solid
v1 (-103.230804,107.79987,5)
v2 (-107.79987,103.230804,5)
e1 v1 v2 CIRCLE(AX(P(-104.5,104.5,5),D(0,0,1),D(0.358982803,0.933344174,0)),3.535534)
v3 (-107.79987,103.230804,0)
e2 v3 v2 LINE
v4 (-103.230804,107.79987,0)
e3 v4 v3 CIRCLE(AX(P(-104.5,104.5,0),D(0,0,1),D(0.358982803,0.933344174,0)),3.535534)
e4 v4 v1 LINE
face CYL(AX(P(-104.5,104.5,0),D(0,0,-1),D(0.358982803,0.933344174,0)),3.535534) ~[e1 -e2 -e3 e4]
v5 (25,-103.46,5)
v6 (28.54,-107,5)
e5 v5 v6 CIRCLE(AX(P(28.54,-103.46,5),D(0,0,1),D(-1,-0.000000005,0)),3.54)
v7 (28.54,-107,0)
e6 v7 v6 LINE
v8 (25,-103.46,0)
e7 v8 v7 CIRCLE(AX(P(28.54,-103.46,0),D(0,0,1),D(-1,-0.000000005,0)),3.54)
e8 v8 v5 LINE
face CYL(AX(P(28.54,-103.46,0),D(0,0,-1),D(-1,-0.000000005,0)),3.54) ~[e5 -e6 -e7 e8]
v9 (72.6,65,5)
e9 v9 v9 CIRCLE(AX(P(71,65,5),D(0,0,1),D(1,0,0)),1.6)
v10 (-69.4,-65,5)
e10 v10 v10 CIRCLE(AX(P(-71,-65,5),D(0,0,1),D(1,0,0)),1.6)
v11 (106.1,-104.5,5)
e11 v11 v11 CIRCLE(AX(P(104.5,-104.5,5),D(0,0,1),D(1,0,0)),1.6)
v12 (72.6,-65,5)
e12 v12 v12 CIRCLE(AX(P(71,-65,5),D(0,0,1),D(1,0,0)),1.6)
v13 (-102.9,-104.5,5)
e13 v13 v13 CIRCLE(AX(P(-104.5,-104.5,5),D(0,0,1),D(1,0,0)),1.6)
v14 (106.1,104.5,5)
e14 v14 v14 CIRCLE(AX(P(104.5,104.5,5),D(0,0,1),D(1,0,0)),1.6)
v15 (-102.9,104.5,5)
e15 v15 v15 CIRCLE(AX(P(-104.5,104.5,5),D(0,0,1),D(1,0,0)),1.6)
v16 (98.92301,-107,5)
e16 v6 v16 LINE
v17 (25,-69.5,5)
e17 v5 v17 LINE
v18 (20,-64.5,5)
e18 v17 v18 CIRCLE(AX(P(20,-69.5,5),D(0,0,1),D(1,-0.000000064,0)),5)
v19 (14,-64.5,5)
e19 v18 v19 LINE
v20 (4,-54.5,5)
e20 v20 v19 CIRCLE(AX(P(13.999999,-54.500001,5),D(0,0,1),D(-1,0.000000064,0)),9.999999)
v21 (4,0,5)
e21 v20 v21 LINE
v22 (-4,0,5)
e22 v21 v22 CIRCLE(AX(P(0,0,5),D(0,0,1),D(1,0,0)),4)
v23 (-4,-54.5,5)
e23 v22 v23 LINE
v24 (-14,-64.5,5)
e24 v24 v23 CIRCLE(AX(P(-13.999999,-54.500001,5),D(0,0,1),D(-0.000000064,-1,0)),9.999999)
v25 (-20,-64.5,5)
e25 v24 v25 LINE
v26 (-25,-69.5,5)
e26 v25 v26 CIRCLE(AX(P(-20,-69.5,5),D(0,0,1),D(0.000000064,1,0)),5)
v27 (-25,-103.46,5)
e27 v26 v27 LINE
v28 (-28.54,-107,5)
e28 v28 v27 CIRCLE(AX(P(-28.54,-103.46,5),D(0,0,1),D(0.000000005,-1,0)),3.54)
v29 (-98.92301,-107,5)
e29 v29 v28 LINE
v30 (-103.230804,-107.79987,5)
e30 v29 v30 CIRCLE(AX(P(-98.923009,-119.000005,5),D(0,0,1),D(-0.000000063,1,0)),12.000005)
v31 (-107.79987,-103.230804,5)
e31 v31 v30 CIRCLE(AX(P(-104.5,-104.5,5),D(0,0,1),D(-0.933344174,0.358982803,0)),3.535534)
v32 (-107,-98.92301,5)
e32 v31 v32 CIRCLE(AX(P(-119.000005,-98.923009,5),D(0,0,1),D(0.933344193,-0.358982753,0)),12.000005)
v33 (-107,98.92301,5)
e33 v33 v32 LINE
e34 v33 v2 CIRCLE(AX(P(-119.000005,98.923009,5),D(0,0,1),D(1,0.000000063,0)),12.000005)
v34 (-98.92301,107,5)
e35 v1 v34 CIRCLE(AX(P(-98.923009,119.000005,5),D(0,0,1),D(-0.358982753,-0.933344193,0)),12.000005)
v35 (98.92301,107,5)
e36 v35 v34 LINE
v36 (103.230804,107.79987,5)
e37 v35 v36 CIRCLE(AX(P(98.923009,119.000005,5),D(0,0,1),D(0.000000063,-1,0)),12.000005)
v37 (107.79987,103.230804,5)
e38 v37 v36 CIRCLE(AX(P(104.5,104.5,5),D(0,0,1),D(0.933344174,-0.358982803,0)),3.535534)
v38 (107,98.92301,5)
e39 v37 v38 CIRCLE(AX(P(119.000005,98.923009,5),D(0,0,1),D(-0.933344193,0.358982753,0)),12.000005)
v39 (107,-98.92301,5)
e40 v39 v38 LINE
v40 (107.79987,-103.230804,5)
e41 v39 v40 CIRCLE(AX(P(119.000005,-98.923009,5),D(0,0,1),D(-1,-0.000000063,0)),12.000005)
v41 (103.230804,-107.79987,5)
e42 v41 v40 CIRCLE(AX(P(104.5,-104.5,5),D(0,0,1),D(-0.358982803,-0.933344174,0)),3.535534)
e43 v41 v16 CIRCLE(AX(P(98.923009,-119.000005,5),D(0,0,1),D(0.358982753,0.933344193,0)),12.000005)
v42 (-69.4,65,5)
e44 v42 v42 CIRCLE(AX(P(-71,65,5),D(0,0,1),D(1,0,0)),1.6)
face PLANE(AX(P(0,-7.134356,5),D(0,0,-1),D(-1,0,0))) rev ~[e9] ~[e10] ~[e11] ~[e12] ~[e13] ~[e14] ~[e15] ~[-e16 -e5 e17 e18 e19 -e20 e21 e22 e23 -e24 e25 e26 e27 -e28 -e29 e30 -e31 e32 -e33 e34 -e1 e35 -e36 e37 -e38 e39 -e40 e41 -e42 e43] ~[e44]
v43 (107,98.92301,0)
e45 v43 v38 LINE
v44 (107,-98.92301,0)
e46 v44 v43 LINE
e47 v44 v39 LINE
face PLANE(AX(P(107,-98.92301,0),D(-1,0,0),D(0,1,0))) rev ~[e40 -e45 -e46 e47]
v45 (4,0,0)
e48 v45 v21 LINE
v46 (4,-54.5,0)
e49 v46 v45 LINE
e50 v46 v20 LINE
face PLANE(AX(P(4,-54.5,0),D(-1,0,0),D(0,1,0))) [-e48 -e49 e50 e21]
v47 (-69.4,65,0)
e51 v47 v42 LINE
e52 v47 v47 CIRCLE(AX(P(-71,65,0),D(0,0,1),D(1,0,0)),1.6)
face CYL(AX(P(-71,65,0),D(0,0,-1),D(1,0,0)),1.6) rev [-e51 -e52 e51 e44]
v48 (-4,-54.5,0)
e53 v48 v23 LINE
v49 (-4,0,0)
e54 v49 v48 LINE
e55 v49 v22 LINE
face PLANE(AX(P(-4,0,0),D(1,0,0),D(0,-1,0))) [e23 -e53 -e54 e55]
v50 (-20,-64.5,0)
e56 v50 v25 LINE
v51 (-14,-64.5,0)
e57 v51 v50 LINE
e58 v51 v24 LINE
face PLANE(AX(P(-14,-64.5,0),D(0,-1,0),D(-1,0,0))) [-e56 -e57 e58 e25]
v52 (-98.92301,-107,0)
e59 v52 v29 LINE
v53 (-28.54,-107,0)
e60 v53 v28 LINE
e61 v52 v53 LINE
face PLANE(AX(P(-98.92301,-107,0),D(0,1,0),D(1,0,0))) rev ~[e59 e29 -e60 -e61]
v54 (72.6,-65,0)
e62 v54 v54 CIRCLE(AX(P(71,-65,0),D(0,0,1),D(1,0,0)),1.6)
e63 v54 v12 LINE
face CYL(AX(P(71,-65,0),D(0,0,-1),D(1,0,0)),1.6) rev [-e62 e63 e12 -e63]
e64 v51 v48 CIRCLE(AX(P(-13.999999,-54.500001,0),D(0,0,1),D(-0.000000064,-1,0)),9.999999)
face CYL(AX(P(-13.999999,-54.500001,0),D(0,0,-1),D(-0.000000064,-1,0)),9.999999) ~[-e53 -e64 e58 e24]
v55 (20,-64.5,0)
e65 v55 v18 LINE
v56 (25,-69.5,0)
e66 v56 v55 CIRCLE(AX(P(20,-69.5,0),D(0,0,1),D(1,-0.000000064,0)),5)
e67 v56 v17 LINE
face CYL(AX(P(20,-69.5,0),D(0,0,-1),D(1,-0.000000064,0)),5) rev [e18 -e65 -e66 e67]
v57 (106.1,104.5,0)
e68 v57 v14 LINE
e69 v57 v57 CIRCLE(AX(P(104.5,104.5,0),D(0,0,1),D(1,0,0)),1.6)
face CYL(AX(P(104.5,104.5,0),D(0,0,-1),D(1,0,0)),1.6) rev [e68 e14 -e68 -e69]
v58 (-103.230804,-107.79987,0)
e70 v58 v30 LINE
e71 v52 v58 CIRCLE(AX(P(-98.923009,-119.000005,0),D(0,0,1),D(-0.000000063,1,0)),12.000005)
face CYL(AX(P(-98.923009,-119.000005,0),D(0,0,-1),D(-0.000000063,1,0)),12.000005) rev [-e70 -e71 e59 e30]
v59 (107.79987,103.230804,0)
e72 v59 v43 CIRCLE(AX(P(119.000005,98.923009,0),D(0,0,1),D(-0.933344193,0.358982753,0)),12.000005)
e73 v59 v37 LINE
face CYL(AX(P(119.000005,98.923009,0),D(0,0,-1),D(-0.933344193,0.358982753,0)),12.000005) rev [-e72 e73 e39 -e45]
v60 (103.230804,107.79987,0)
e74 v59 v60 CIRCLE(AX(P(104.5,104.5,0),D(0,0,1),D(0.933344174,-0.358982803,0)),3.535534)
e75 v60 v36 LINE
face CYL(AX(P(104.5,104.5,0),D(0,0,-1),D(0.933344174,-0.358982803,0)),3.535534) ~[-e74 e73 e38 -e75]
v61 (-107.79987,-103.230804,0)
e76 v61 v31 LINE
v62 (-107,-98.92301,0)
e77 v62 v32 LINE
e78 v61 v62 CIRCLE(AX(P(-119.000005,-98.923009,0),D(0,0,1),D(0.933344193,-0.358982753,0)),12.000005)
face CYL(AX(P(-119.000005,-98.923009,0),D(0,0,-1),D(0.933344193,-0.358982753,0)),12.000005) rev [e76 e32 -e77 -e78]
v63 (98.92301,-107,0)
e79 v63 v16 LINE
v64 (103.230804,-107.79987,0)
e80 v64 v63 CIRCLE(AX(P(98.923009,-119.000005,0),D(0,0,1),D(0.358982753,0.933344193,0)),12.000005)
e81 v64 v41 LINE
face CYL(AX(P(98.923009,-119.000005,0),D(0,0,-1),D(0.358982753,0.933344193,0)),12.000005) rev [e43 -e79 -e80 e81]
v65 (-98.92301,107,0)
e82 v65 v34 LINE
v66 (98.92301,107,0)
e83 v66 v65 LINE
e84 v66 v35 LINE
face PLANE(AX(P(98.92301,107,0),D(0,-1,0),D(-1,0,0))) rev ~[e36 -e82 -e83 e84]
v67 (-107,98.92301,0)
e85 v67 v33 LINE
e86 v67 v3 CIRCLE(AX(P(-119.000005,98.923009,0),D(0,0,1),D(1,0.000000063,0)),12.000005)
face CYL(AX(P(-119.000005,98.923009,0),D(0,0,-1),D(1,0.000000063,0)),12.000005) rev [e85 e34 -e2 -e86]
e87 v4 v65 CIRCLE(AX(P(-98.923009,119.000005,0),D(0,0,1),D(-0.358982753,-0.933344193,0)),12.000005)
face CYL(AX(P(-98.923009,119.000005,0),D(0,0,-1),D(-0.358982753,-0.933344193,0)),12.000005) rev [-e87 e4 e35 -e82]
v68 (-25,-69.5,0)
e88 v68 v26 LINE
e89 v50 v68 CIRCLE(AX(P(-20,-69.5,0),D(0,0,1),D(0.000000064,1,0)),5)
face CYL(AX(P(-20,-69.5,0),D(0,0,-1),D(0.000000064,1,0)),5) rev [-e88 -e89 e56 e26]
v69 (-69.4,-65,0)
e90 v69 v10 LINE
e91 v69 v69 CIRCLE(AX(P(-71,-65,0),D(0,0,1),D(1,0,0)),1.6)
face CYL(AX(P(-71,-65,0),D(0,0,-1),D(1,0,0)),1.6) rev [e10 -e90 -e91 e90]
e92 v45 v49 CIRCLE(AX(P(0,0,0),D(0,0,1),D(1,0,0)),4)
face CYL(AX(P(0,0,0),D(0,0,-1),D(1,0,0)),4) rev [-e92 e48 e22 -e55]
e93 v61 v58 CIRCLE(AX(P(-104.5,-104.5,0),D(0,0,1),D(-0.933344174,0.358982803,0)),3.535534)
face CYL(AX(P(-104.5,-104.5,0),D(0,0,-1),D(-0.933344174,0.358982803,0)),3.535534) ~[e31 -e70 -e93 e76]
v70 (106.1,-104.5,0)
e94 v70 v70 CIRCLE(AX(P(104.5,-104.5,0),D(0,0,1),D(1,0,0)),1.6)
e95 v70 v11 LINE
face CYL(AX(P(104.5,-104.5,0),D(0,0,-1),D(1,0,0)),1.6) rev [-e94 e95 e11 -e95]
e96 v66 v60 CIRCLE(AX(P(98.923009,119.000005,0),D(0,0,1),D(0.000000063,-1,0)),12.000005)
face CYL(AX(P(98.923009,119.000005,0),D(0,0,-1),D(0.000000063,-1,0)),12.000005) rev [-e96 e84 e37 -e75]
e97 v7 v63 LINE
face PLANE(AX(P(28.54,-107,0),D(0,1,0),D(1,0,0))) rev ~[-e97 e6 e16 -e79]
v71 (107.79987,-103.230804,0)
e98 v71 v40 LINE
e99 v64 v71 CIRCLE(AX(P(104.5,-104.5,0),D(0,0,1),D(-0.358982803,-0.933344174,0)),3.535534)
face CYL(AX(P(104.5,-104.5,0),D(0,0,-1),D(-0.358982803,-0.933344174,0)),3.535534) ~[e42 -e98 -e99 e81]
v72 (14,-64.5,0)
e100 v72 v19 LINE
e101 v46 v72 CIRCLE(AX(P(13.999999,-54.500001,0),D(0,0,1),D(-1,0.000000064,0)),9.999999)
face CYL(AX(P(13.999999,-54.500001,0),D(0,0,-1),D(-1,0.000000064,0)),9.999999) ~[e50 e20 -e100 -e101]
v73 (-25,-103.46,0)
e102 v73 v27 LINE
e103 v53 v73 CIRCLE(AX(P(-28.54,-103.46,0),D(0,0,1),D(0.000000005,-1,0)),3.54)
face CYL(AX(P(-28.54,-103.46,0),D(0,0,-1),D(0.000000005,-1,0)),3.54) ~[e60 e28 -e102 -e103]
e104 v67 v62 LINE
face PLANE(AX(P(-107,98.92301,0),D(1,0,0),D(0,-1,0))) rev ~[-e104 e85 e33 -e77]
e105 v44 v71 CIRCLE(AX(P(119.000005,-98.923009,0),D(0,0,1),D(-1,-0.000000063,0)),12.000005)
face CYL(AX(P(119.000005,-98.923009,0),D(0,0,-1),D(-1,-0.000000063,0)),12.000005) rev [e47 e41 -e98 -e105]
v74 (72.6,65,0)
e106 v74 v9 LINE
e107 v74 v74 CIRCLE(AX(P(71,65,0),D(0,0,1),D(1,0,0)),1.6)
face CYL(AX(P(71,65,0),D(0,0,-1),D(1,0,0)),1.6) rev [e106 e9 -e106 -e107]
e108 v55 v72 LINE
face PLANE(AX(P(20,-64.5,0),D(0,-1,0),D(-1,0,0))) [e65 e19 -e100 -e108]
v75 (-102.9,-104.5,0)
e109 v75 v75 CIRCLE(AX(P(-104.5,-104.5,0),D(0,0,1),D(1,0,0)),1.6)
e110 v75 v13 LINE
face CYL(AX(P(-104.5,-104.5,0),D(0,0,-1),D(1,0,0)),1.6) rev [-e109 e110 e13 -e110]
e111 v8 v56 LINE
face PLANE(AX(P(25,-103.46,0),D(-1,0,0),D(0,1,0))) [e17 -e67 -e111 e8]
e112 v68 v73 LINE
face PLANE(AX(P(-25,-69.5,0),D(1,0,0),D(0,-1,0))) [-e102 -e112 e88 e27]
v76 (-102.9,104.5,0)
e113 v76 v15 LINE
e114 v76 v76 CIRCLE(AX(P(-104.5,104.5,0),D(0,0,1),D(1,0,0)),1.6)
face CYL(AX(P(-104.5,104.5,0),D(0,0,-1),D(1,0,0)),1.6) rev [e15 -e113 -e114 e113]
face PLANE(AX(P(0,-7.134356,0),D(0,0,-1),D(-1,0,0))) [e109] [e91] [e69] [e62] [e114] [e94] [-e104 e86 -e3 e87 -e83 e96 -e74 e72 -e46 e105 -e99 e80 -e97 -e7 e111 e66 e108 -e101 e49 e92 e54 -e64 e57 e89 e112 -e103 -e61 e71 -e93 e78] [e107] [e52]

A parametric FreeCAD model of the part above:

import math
import FreeCAD as App
import Part
import Sketcher

V = App.Vector

doc = App.newDocument("Part")
params = doc.addObject("Spreadsheet::Sheet", "Params")
for row, (alias, value) in enumerate([
    ("sketch1_radius", "4 mm"),
    ("sketch1_radius2", "9.999999 mm"),
    ("sketch1_radius3", "5 mm"),
    ("sketch1_diameter", "3.2 mm"),
    ("sketch1_width", "6 mm"),
    ("pad1_length", "5 mm"),
], start=1):
    params.set(f"A{row}", alias)
    params.set(f"B{row}", "=" + value)
    params.setAlias(f"B{row}", alias)

body = doc.addObject("PartDesign::Body", "Body")

sketch1 = body.newObject("Sketcher::SketchObject", "Sketch")
sketch1.AttachmentSupport = (doc.getObject("XY_Plane"), [""])
sketch1.MapMode = "FlatFace"
sketch1.addGeometry([
    Part.ArcOfCircle(Part.Circle(V(0, 0, 0), V(0, 0, 1), 4), math.radians(0), math.radians(180)),
    Part.LineSegment(V(4, 0, 0), V(4, -54.5, 0)),
    Part.ArcOfCircle(Part.Circle(V(14, -54.5, 0), V(0, 0, 1), 10), math.radians(180), math.radians(270)),
    Part.LineSegment(V(14, -64.5, 0), V(20, -64.5, 0)),
    Part.ArcOfCircle(Part.Circle(V(20, -69.5, 0), V(0, 0, 1), 5), math.radians(0), math.radians(90)),
    Part.LineSegment(V(25, -69.5, 0), V(25, -103.5, 0)),
    Part.ArcOfCircle(Part.Circle(V(28.5, -103.5, 0), V(0, 0, 1), 3.5), math.radians(-180), math.radians(-90)),
    Part.LineSegment(V(28.5, -107, 0), V(98.9, -107, 0)),
    Part.ArcOfCircle(Part.Circle(V(98.9, -119, 0), V(0, 0, 1), 12), math.radians(69), math.radians(90)),
    Part.ArcOfCircle(Part.Circle(V(104.5, -104.5, 0), V(0, 0, 1), 3.5), math.radians(-111), math.radians(21)),
    Part.ArcOfCircle(Part.Circle(V(119, -98.9, 0), V(0, 0, 1), 12), math.radians(-180), math.radians(-159)),
    Part.LineSegment(V(107, -98.9, 0), V(107, 98.9, 0)),
    Part.ArcOfCircle(Part.Circle(V(119, 98.9, 0), V(0, 0, 1), 12), math.radians(159), math.radians(180)),
    Part.ArcOfCircle(Part.Circle(V(104.5, 104.5, 0), V(0, 0, 1), 3.5), math.radians(-21), math.radians(111)),
    Part.ArcOfCircle(Part.Circle(V(98.9, 119, 0), V(0, 0, 1), 12), math.radians(-90), math.radians(-69)),
    Part.LineSegment(V(98.9, 107, 0), V(-98.9, 107, 0)),
    Part.ArcOfCircle(Part.Circle(V(-98.9, 119, 0), V(0, 0, 1), 12), math.radians(-111), math.radians(-90)),
    Part.ArcOfCircle(Part.Circle(V(-104.5, 104.5, 0), V(0, 0, 1), 3.5), math.radians(69), math.radians(201)),
    Part.ArcOfCircle(Part.Circle(V(-119, 98.9, 0), V(0, 0, 1), 12), math.radians(0), math.radians(21)),
    Part.LineSegment(V(-107, 98.9, 0), V(-107, -98.9, 0)),
    Part.ArcOfCircle(Part.Circle(V(-119, -98.9, 0), V(0, 0, 1), 12), math.radians(-21), math.radians(0)),
    Part.ArcOfCircle(Part.Circle(V(-104.5, -104.5, 0), V(0, 0, 1), 3.5), math.radians(159), math.radians(291)),
    Part.ArcOfCircle(Part.Circle(V(-98.9, -119, 0), V(0, 0, 1), 12), math.radians(90), math.radians(111)),
    Part.LineSegment(V(-98.9, -107, 0), V(-28.5, -107, 0)),
    Part.ArcOfCircle(Part.Circle(V(-28.5, -103.5, 0), V(0, 0, 1), 3.5), math.radians(-90), math.radians(0)),
    Part.LineSegment(V(-25, -103.5, 0), V(-25, -69.5, 0)),
    Part.ArcOfCircle(Part.Circle(V(-20, -69.5, 0), V(0, 0, 1), 5), math.radians(90), math.radians(180)),
    Part.LineSegment(V(-20, -64.5, 0), V(-14, -64.5, 0)),
    Part.ArcOfCircle(Part.Circle(V(-14, -54.5, 0), V(0, 0, 1), 10), math.radians(-90), math.radians(0)),
    Part.LineSegment(V(-4, -54.5, 0), V(-4, 0, 0)),
    Part.Circle(V(104.5, -104.5, 0), V(0, 0, 1), 1.6),
    Part.Circle(V(71, -65, 0), V(0, 0, 1), 1.6),
    Part.Circle(V(-104.5, -104.5, 0), V(0, 0, 1), 1.6),
    Part.Circle(V(-71, -65, 0), V(0, 0, 1), 1.6),
    Part.Circle(V(71, 65, 0), V(0, 0, 1), 1.6),
    Part.Circle(V(104.5, 104.5, 0), V(0, 0, 1), 1.6),
    Part.Circle(V(-71, 65, 0), V(0, 0, 1), 1.6),
    Part.Circle(V(-104.5, 104.5, 0), V(0, 0, 1), 1.6),
], False)
sketch1.addConstraint([
    Sketcher.Constraint("Tangent", 0, 1, 1, 1),
    Sketcher.Constraint("Tangent", 1, 2, 2, 1),
    Sketcher.Constraint("Tangent", 2, 2, 3, 1),
    Sketcher.Constraint("Tangent", 3, 2, 4, 2),
    Sketcher.Constraint("Tangent", 4, 1, 5, 1),
    Sketcher.Constraint("Tangent", 5, 2, 6, 1),
    Sketcher.Constraint("Tangent", 6, 2, 7, 1),
    Sketcher.Constraint("Tangent", 7, 2, 8, 2),
    Sketcher.Constraint("Tangent", 8, 1, 9, 1),
    Sketcher.Constraint("Tangent", 9, 2, 10, 2),
    Sketcher.Constraint("Tangent", 10, 1, 11, 1),
    Sketcher.Constraint("Tangent", 11, 2, 12, 2),
    Sketcher.Constraint("Tangent", 12, 1, 13, 1),
    Sketcher.Constraint("Tangent", 13, 2, 14, 2),
    Sketcher.Constraint("Tangent", 14, 1, 15, 1),
    Sketcher.Constraint("Tangent", 15, 2, 16, 2),
    Sketcher.Constraint("Tangent", 16, 1, 17, 1),
    Sketcher.Constraint("Tangent", 17, 2, 18, 2),
    Sketcher.Constraint("Tangent", 18, 1, 19, 1),
    Sketcher.Constraint("Tangent", 19, 2, 20, 2),
    Sketcher.Constraint("Tangent", 20, 1, 21, 1),
    Sketcher.Constraint("Tangent", 21, 2, 22, 2),
    Sketcher.Constraint("Tangent", 22, 1, 23, 1),
    Sketcher.Constraint("Tangent", 23, 2, 24, 1),
    Sketcher.Constraint("Tangent", 24, 2, 25, 1),
    Sketcher.Constraint("Tangent", 25, 2, 26, 2),
    Sketcher.Constraint("Tangent", 26, 1, 27, 1),
    Sketcher.Constraint("Tangent", 27, 2, 28, 1),
    Sketcher.Constraint("Tangent", 28, 2, 29, 1),
    Sketcher.Constraint("Tangent", 29, 2, 0, 2),
    Sketcher.Constraint("Vertical", 1),
    Sketcher.Constraint("Horizontal", 3),
    Sketcher.Constraint("Vertical", 5),
    Sketcher.Constraint("Horizontal", 7),
    Sketcher.Constraint("Vertical", 11),
    Sketcher.Constraint("Horizontal", 15),
    Sketcher.Constraint("Vertical", 19),
    Sketcher.Constraint("Horizontal", 23),
    Sketcher.Constraint("Vertical", 25),
    Sketcher.Constraint("Horizontal", 27),
    Sketcher.Constraint("Vertical", 29),
    Sketcher.Constraint("Coincident", 0, 3, -1, 1),
    Sketcher.Constraint("Coincident", 30, 3, 9, 3),
    Sketcher.Constraint("Coincident", 32, 3, 21, 3),
    Sketcher.Constraint("Coincident", 35, 3, 13, 3),
    Sketcher.Constraint("Coincident", 37, 3, 17, 3),
    Sketcher.Constraint("Equal", 8, 10),
    Sketcher.Constraint("Equal", 10, 12),
    Sketcher.Constraint("Equal", 9, 13),
    Sketcher.Constraint("Equal", 12, 14),
    Sketcher.Constraint("Equal", 14, 16),
    Sketcher.Constraint("Equal", 13, 17),
    Sketcher.Constraint("Equal", 16, 18),
    Sketcher.Constraint("Equal", 18, 20),
    Sketcher.Constraint("Equal", 17, 21),
    Sketcher.Constraint("Equal", 20, 22),
    Sketcher.Constraint("Equal", 6, 24),
    Sketcher.Constraint("Equal", 4, 26),
    Sketcher.Constraint("Equal", 2, 28),
    Sketcher.Constraint("Equal", 30, 31),
    Sketcher.Constraint("Equal", 31, 32),
    Sketcher.Constraint("Equal", 32, 33),
    Sketcher.Constraint("Equal", 33, 34),
    Sketcher.Constraint("Equal", 34, 35),
    Sketcher.Constraint("Equal", 35, 36),
    Sketcher.Constraint("Equal", 36, 37),
    Sketcher.Constraint("Symmetric", 8, 3, 16, 3, -1, 1),
    Sketcher.Constraint("Symmetric", 10, 3, 18, 3, -1, 1),
    Sketcher.Constraint("Symmetric", 13, 3, 21, 3, -1, 1),
    Sketcher.Constraint("Symmetric", 33, 3, 34, 3, -1, 1),
    Sketcher.Constraint("Symmetric", 31, 3, 36, 3, -1, 1),
    Sketcher.Constraint("Symmetric", 13, 3, 17, 3, -2),
    Sketcher.Constraint("Symmetric", 6, 3, 24, 3, -2),
    Sketcher.Constraint("Symmetric", 31, 3, 33, 3, -2),
    Sketcher.Constraint("Horizontal", 4, 3, 26, 3),
    Sketcher.Constraint("Equal", 15, 11),
    Sketcher.Constraint("Radius", 0, 4.0),
    Sketcher.Constraint("Radius", 2, 9.999999),
    Sketcher.Constraint("Radius", 4, 5.0),
    Sketcher.Constraint("Diameter", 30, 3.2),
    Sketcher.Constraint("DistanceX", 3, 1, 3, 2, 6.0),
    Sketcher.Constraint("Radius", 6, 3.54),
    Sketcher.Constraint("DistanceY", 1, 2, 1, 1, 54.5),
    Sketcher.Constraint("DistanceX", -1, 1, 31, 3, 71.0),
    Sketcher.Constraint("DistanceY", 31, 3, -1, 1, 65.0),
    Sketcher.Constraint("DistanceY", 6, 2, -1, 1, 107.0),
    Sketcher.Constraint("DistanceX", -1, 1, 10, 1, 107.0),
    Sketcher.Constraint("DistanceY", 9, 3, 4, 3, 35.0),
    Sketcher.Constraint("Radius", 8, 12.000005),
    Sketcher.Constraint("Radius", 9, 3.535534),
])
sketch1.setExpression("Constraints[76]", "Params.sketch1_radius")
sketch1.setExpression("Constraints[77]", "Params.sketch1_radius2")
sketch1.setExpression("Constraints[78]", "Params.sketch1_radius3")
sketch1.setExpression("Constraints[79]", "Params.sketch1_diameter")
sketch1.setExpression("Constraints[80]", "Params.sketch1_width")
pad1 = body.newObject("PartDesign::Pad", "Pad")
pad1.Profile = sketch1
pad1.setExpression("Length", "Params.pad1_length")

doc.recompute()
